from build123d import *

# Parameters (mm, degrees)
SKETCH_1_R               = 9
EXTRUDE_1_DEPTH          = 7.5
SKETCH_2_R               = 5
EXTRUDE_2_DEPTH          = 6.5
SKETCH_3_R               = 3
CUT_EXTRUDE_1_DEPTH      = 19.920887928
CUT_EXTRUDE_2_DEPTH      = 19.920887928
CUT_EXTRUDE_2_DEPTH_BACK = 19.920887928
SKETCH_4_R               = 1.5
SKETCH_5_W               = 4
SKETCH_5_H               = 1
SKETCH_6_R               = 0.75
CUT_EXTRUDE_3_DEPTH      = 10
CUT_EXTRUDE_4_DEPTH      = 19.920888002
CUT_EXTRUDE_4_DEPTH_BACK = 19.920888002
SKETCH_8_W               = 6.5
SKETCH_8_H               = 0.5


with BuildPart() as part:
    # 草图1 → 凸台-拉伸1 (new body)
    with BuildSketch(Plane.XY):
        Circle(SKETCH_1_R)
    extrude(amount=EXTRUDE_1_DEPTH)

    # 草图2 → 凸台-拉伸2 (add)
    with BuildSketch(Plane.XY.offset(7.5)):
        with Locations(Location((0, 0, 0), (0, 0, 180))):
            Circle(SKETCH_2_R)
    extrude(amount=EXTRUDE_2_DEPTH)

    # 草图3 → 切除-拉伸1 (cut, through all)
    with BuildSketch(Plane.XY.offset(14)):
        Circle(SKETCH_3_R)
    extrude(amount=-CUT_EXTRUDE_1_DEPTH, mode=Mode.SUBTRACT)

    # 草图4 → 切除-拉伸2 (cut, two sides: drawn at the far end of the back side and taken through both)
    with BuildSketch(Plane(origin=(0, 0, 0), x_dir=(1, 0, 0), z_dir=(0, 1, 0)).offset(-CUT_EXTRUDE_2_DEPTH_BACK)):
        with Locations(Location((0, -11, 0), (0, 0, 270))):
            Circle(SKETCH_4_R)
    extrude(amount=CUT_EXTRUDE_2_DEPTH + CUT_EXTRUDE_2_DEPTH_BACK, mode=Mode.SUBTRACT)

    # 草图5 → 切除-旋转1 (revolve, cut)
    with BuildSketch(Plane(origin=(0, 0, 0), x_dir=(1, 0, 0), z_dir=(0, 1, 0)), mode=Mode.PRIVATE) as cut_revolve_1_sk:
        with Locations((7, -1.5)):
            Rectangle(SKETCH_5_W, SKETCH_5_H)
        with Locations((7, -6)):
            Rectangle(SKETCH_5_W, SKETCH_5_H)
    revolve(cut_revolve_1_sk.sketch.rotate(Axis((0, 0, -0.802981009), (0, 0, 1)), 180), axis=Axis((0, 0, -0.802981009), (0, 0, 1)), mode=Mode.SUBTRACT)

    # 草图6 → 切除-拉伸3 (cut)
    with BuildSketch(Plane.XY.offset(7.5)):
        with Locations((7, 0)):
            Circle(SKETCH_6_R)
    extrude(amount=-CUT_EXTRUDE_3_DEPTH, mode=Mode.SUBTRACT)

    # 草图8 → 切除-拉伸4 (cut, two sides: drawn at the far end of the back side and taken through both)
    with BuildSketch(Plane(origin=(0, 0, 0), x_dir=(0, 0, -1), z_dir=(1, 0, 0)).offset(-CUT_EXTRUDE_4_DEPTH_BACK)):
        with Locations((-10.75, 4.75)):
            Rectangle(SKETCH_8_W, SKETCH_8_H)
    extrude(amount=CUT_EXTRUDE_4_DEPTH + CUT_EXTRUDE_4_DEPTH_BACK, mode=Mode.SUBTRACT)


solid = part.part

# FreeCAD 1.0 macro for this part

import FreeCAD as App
import Part
import Sketcher
Q = App.Units.Quantity

doc = App.newDocument("Part")
body = doc.addObject("PartDesign::Body", "Body")

# Sketch on XY plane
sketch1 = doc.addObject("Sketcher::SketchObject", "Sketch")
body.addObject(sketch1)
sketch1.AttachmentSupport = (doc.XY_Plane, [""])
sketch1.MapMode = "FlatFace"
sketch1.addGeometry(Part.Circle(App.Vector(0, 0, 0), App.Vector(0, 0, 1), 9), False)
sketch1.addConstraint(Sketcher.Constraint("Coincident", 0, 3, -1, 1))
sketch1.addConstraint(Sketcher.Constraint("Diameter", 0, Q("18 mm")))
pad1 = doc.addObject("PartDesign::Pad", "Pad")
body.addObject(pad1)
pad1.Profile = sketch1
pad1.Length = 7.5

# Sketch on XY plane
sketch2 = doc.addObject("Sketcher::SketchObject", "Sketch001")
body.addObject(sketch2)
sketch2.AttachmentSupport = (doc.XY_Plane, [""])
sketch2.MapMode = "FlatFace"
sketch2.AttachmentOffset = App.Placement(App.Vector(0, 0, 7.5), App.Rotation())
sketch2.addGeometry(Part.Circle(App.Vector(0, 0, 0), App.Vector(0, 0, 1), 5), False)
sketch2.addConstraint(Sketcher.Constraint("Coincident", 0, 3, -1, 1))
sketch2.addConstraint(Sketcher.Constraint("Diameter", 0, Q("10 mm")))
pad2 = doc.addObject("PartDesign::Pad", "Pad001")
body.addObject(pad2)
pad2.Profile = sketch2
pad2.Length = 6.5

# Sketch on XY plane
sketch3 = doc.addObject("Sketcher::SketchObject", "Sketch002")
body.addObject(sketch3)
sketch3.AttachmentSupport = (doc.XY_Plane, [""])
sketch3.MapMode = "FlatFace"
sketch3.AttachmentOffset = App.Placement(App.Vector(0, 0, 14), App.Rotation())
sketch3.addGeometry(Part.Circle(App.Vector(0, 0, 0), App.Vector(0, 0, 1), 3), False)
sketch3.addConstraint(Sketcher.Constraint("Coincident", 0, 3, -1, 1))
sketch3.addConstraint(Sketcher.Constraint("Diameter", 0, Q("6 mm")))
pocket1 = doc.addObject("PartDesign::Pocket", "Pocket")
body.addObject(pocket1)
pocket1.Profile = sketch3
pocket1.Type = "ThroughAll"

# Sketch on XZ plane
sketch4 = doc.addObject("Sketcher::SketchObject", "Sketch003")
body.addObject(sketch4)
sketch4.AttachmentSupport = (doc.XZ_Plane, [""])
sketch4.MapMode = "FlatFace"
sketch4.addGeometry(Part.Circle(App.Vector(0, 11, 0), App.Vector(0, 0, 1), 1.5), False)
sketch4.addConstraint(Sketcher.Constraint("PointOnObject", 0, 3, -2))
sketch4.addConstraint(Sketcher.Constraint("Diameter", 0, Q("3 mm")))
sketch4.addConstraint(Sketcher.Constraint("DistanceY", -1, 1, 0, 3, Q("11 mm")))
pocket2 = doc.addObject("PartDesign::Pocket", "Pocket001")
body.addObject(pocket2)
pocket2.Profile = sketch4
pocket2.Type = "ThroughAll"
pocket2.Midplane = True

# Sketch on XZ plane
sketch5 = doc.addObject("Sketcher::SketchObject", "Sketch004")
body.addObject(sketch5)
sketch5.AttachmentSupport = (doc.XZ_Plane, [""])
sketch5.MapMode = "FlatFace"
sketch5.addGeometry(Part.LineSegment(App.Vector(5, 1, 0), App.Vector(5, 2, 0)), False)
sketch5.addGeometry(Part.LineSegment(App.Vector(5, 2, 0), App.Vector(9, 2, 0)), False)
sketch5.addGeometry(Part.LineSegment(App.Vector(9, 2, 0), App.Vector(9, 1, 0)), False)
sketch5.addGeometry(Part.LineSegment(App.Vector(9, 1, 0), App.Vector(5, 1, 0)), False)
sketch5.addGeometry(Part.LineSegment(App.Vector(5, 5.5, 0), App.Vector(5, 6.5, 0)), False)
sketch5.addGeometry(Part.LineSegment(App.Vector(5, 6.5, 0), App.Vector(9, 6.5, 0)), False)
sketch5.addGeometry(Part.LineSegment(App.Vector(9, 6.5, 0), App.Vector(9, 5.5, 0)), False)
sketch5.addGeometry(Part.LineSegment(App.Vector(9, 5.5, 0), App.Vector(5, 5.5, 0)), False)
sketch5.addConstraint(Sketcher.Constraint("Coincident", 0, 2, 1, 1))
sketch5.addConstraint(Sketcher.Constraint("Coincident", 1, 2, 2, 1))
sketch5.addConstraint(Sketcher.Constraint("Coincident", 2, 2, 3, 1))
sketch5.addConstraint(Sketcher.Constraint("Coincident", 3, 2, 0, 1))
sketch5.addConstraint(Sketcher.Constraint("Coincident", 4, 2, 5, 1))
sketch5.addConstraint(Sketcher.Constraint("Coincident", 5, 2, 6, 1))
sketch5.addConstraint(Sketcher.Constraint("Coincident", 6, 2, 7, 1))
sketch5.addConstraint(Sketcher.Constraint("Coincident", 7, 2, 4, 1))
sketch5.addConstraint(Sketcher.Constraint("Vertical", 0))
sketch5.addConstraint(Sketcher.Constraint("Horizontal", 1))
sketch5.addConstraint(Sketcher.Constraint("Vertical", 2))
sketch5.addConstraint(Sketcher.Constraint("Horizontal", 3))
sketch5.addConstraint(Sketcher.Constraint("Vertical", 4))
sketch5.addConstraint(Sketcher.Constraint("Horizontal", 5))
sketch5.addConstraint(Sketcher.Constraint("Vertical", 6))
sketch5.addConstraint(Sketcher.Constraint("Horizontal", 7))
sketch5.addConstraint(Sketcher.Constraint("Vertical", 3, 2, 4, 2))
sketch5.addConstraint(Sketcher.Constraint("Vertical", 2, 2, 5, 2))
sketch5.addConstraint(Sketcher.Constraint("Equal", 2, 4))
sketch5.addConstraint(Sketcher.Constraint("DistanceX", 1, 1, 1, 2, Q("4 mm")))
sketch5.addConstraint(Sketcher.Constraint("DistanceY", 0, 1, 0, 2, Q("1 mm")))
sketch5.addConstraint(Sketcher.Constraint("DistanceX", -1, 1, 0, 2, Q("5 mm")))
sketch5.addConstraint(Sketcher.Constraint("DistanceY", -1, 1, 0, 2, Q("2 mm")))
sketch5.addConstraint(Sketcher.Constraint("DistanceY", -1, 1, 4, 2, Q("6.5 mm")))
groove = doc.addObject("PartDesign::Groove", "Groove")
body.addObject(groove)
groove.Profile = sketch5
groove.ReferenceAxis = (sketch5, ["V_Axis"])
groove.Angle = 360

# Sketch on XY plane
sketch6 = doc.addObject("Sketcher::SketchObject", "Sketch005")
body.addObject(sketch6)
sketch6.AttachmentSupport = (doc.XY_Plane, [""])
sketch6.MapMode = "FlatFace"
sketch6.AttachmentOffset = App.Placement(App.Vector(0, 0, 7.5), App.Rotation())
sketch6.addGeometry(Part.Circle(App.Vector(7, 0, 0), App.Vector(0, 0, 1), 0.8), False)
sketch6.addConstraint(Sketcher.Constraint("PointOnObject", 0, 3, -1))
sketch6.addConstraint(Sketcher.Constraint("Diameter", 0, Q("1.5 mm")))
sketch6.addConstraint(Sketcher.Constraint("DistanceX", -1, 1, 0, 3, Q("7 mm")))
pocket3 = doc.addObject("PartDesign::Pocket", "Pocket002")
body.addObject(pocket3)
pocket3.Profile = sketch6
pocket3.Length = 10

# Sketch on YZ plane
sketch7 = doc.addObject("Sketcher::SketchObject", "Sketch006")
body.addObject(sketch7)
sketch7.AttachmentSupport = (doc.YZ_Plane, [""])
sketch7.MapMode = "FlatFace"
sketch7.addGeometry(Part.LineSegment(App.Vector(5, 14, 0), App.Vector(4.5, 14, 0)), False)
sketch7.addGeometry(Part.LineSegment(App.Vector(4.5, 14, 0), App.Vector(4.5, 7.5, 0)), False)
sketch7.addGeometry(Part.LineSegment(App.Vector(4.5, 7.5, 0), App.Vector(5, 7.5, 0)), False)
sketch7.addGeometry(Part.LineSegment(App.Vector(5, 7.5, 0), App.Vector(5, 14, 0)), False)
sketch7.addConstraint(Sketcher.Constraint("Coincident", 0, 2, 1, 1))
sketch7.addConstraint(Sketcher.Constraint("Coincident", 1, 2, 2, 1))
sketch7.addConstraint(Sketcher.Constraint("Coincident", 2, 2, 3, 1))
sketch7.addConstraint(Sketcher.Constraint("Coincident", 3, 2, 0, 1))
sketch7.addConstraint(Sketcher.Constraint("Horizontal", 0))
sketch7.addConstraint(Sketcher.Constraint("Vertical", 1))
sketch7.addConstraint(Sketcher.Constraint("Horizontal", 2))
sketch7.addConstraint(Sketcher.Constraint("Vertical", 3))
sketch7.addConstraint(Sketcher.Constraint("DistanceX", 0, 2, 0, 1, Q("0.5 mm")))
sketch7.addConstraint(Sketcher.Constraint("DistanceY", 1, 2, 1, 1, Q("6.5 mm")))
sketch7.addConstraint(Sketcher.Constraint("DistanceY", -1, 1, 0, 2, Q("14 mm")))
sketch7.addConstraint(Sketcher.Constraint("DistanceX", -1, 1, 2, 2, Q("5 mm")))
pocket4 = doc.addObject("PartDesign::Pocket", "Pocket003")
body.addObject(pocket4)
pocket4.Profile = sketch7
pocket4.Type = "ThroughAll"
pocket4.Midplane = True

doc.recompute()
